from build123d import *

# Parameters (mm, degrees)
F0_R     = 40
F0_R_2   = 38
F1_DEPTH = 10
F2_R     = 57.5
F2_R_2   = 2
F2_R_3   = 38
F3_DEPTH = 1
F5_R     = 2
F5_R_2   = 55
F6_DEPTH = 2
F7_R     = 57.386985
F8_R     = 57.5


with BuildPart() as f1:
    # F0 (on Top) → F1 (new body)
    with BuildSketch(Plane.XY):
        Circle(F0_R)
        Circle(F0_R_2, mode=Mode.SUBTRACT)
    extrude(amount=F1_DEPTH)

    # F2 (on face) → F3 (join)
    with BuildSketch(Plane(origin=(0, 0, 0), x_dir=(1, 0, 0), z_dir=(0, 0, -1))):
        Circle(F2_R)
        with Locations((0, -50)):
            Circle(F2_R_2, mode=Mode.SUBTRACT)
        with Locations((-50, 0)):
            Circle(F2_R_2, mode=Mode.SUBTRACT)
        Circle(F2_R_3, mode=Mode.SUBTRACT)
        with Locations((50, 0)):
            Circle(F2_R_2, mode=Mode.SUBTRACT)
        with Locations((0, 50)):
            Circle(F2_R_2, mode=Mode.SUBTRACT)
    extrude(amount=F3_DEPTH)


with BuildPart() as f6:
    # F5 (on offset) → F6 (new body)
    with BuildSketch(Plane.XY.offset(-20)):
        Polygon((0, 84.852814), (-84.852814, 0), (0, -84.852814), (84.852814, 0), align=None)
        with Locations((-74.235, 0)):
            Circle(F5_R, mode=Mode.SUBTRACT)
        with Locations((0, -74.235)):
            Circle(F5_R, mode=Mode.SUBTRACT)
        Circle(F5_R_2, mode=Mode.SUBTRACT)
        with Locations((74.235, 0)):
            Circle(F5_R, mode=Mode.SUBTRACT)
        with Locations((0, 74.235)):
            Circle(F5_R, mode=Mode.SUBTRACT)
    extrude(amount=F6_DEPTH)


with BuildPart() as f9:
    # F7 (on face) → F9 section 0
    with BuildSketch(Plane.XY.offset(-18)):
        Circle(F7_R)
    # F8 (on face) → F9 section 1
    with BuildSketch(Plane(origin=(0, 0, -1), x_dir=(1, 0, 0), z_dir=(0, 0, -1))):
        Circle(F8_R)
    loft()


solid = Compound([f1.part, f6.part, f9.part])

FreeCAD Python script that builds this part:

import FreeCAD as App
import Part
import Sketcher

V = App.Vector


def add_polygon(sketch, points):
    """Adds a closed chain of lines whose ends are joined by coincident constraints."""
    first, n = sketch.GeometryCount, len(points)
    for a, b in zip(points, points[1:] + points[:1]):
        sketch.addGeometry(Part.LineSegment(App.Vector(*a, 0), App.Vector(*b, 0)), False)
    for i in range(n):
        sketch.addConstraint(Sketcher.Constraint("Coincident", first + i, 2, first + (i + 1) % n, 1))

doc = App.newDocument("Part")
body = doc.addObject("PartDesign::Body", "Body")

# Sketch on XY plane
sketch1 = body.newObject("Sketcher::SketchObject", "Sketch")
sketch1.AttachmentSupport = (doc.getObject("XY_Plane"), [""])
sketch1.MapMode = "FlatFace"
sketch1.addGeometry(Part.Circle(V(0, 0, 0), V(0, 0, 1), 40), False)
sketch1.addGeometry(Part.Circle(V(0, 0, 0), V(0, 0, 1), 38), False)
sketch1.addConstraint(Sketcher.Constraint("Coincident", 0, 3, -1, 1))
sketch1.addConstraint(Sketcher.Constraint("Coincident", 1, 3, -1, 1))
sketch1.addConstraint(Sketcher.Constraint("Diameter", 0, 80.0))
sketch1.addConstraint(Sketcher.Constraint("Diameter", 1, 76.0))
pad1 = body.newObject("PartDesign::Pad", "Pad")
pad1.Profile = sketch1
pad1.Length = 10

# Sketch on XY plane
sketch2 = body.newObject("Sketcher::SketchObject", "Sketch001")
sketch2.AttachmentSupport = (doc.getObject("XY_Plane"), [""])
sketch2.MapMode = "FlatFace"
sketch2.addGeometry(Part.Circle(V(0, 0, 0), V(0, 0, 1), 57.5), False)
sketch2.addGeometry(Part.Circle(V(0, 50, 0), V(0, 0, 1), 2), False)
sketch2.addGeometry(Part.Circle(V(-50, 0, 0), V(0, 0, 1), 2), False)
sketch2.addGeometry(Part.Circle(V(0, 0, 0), V(0, 0, 1), 38), False)
sketch2.addGeometry(Part.Circle(V(50, 0, 0), V(0, 0, 1), 2), False)
sketch2.addGeometry(Part.Circle(V(0, -50, 0), V(0, 0, 1), 2), False)
sketch2.addConstraint(Sketcher.Constraint("Coincident", 0, 3, -1, 1))
sketch2.addConstraint(Sketcher.Constraint("Coincident", 3, 3, -1, 1))
sketch2.addConstraint(Sketcher.Constraint("Equal", 1, 2))
sketch2.addConstraint(Sketcher.Constraint("Equal", 2, 4))
sketch2.addConstraint(Sketcher.Constraint("Equal", 4, 5))
sketch2.addConstraint(Sketcher.Constraint("Symmetric", 2, 3, 4, 3, -1, 1))
sketch2.addConstraint(Sketcher.Constraint("Symmetric", 1, 3, 5, 3, -1, 1))
sketch2.addConstraint(Sketcher.Constraint("PointOnObject", 1, 3, -2))
sketch2.addConstraint(Sketcher.Constraint("PointOnObject", 2, 3, -1))
sketch2.addConstraint(Sketcher.Constraint("Diameter", 0, 115.0))
sketch2.addConstraint(Sketcher.Constraint("Diameter", 1, 4.0))
sketch2.addConstraint(Sketcher.Constraint("Diameter", 3, 76.0))
sketch2.addConstraint(Sketcher.Constraint("DistanceY", -1, 1, 1, 3, 50.0))
sketch2.addConstraint(Sketcher.Constraint("DistanceX", 2, 3, -1, 1, 50.0))
pad2 = body.newObject("PartDesign::Pad", "Pad001")
pad2.Profile = sketch2
pad2.Length = 1
pad2.Reversed = True
body2 = doc.addObject("PartDesign::Body", "Body001")

# Sketch on XY plane
sketch3 = body2.newObject("Sketcher::SketchObject", "Sketch002")
sketch3.AttachmentSupport = (doc.getObject("XY_Plane001"), [""])
sketch3.MapMode = "FlatFace"
sketch3.AttachmentOffset = App.Placement(V(0, 0, -20), App.Rotation())
add_polygon(sketch3, [(0, 84.9), (-84.9, 0), (0, -84.9), (84.9, 0)])  # lines 0-3
sketch3.addGeometry(Part.Circle(V(0, -74.2, 0), V(0, 0, 1), 2), False)  # 4
sketch3.addGeometry(Part.Circle(V(-74.2, 0, 0), V(0, 0, 1), 2), False)  # 5
sketch3.addGeometry(Part.Circle(V(0, 0, 0), V(0, 0, 1), 55), False)  # 6
sketch3.addGeometry(Part.Circle(V(74.2, 0, 0), V(0, 0, 1), 2), False)  # 7
sketch3.addGeometry(Part.Circle(V(0, 74.2, 0), V(0, 0, 1), 2), False)  # 8
sketch3.addConstraint(Sketcher.Constraint("Coincident", 6, 3, -1, 1))
sketch3.addConstraint(Sketcher.Constraint("Equal", 4, 5))
sketch3.addConstraint(Sketcher.Constraint("Equal", 5, 7))
sketch3.addConstraint(Sketcher.Constraint("Equal", 7, 8))
sketch3.addConstraint(Sketcher.Constraint("Symmetric", 5, 3, 7, 3, -1, 1))
sketch3.addConstraint(Sketcher.Constraint("Symmetric", 4, 3, 8, 3, -1, 1))
sketch3.addConstraint(Sketcher.Constraint("Symmetric", 0, 2, 2, 2, -1, 1))
sketch3.addConstraint(Sketcher.Constraint("Symmetric", 1, 2, 3, 2, -1, 1))
sketch3.addConstraint(Sketcher.Constraint("PointOnObject", 4, 3, -2))
sketch3.addConstraint(Sketcher.Constraint("PointOnObject", 5, 3, -1))
sketch3.addConstraint(Sketcher.Constraint("PointOnObject", 0, 2, -1))
sketch3.addConstraint(Sketcher.Constraint("PointOnObject", 1, 2, -2))
sketch3.addConstraint(Sketcher.Constraint("Perpendicular", 0, 1))
sketch3.addConstraint(Sketcher.Constraint("Diameter", 4, 4.0))
sketch3.addConstraint(Sketcher.Constraint("Diameter", 6, 110.0))
sketch3.addConstraint(Sketcher.Constraint("Distance", 0, 120.0))
sketch3.addConstraint(Sketcher.Constraint("DistanceX", 5, 3, 7, 3, 148.47))
sketch3.addConstraint(Sketcher.Constraint("DistanceY", 4, 3, 8, 3, 148.47))
pad3 = body2.newObject("PartDesign::Pad", "Pad002")
pad3.Profile = sketch3
pad3.Length = 2
body3 = doc.addObject("PartDesign::Body", "Body002")

# Sketch on XY plane
sketch4 = body3.newObject("Sketcher::SketchObject", "Sketch003")
sketch4.AttachmentSupport = (doc.getObject("XY_Plane002"), [""])
sketch4.MapMode = "FlatFace"
sketch4.AttachmentOffset = App.Placement(V(0, 0, -18), App.Rotation())
sketch4.addGeometry(Part.Circle(V(0, 0, 0), V(0, 0, 1), 57), False)
sketch4.addConstraint(Sketcher.Constraint("Coincident", 0, 3, -1, 1))
sketch4.addConstraint(Sketcher.Constraint("Diameter", 0, 114.77397))

# Sketch on XY plane
sketch5 = body3.newObject("Sketcher::SketchObject", "Sketch004")
sketch5.AttachmentSupport = (doc.getObject("XY_Plane002"), [""])
sketch5.MapMode = "FlatFace"
sketch5.AttachmentOffset = App.Placement(V(0, 0, -1), App.Rotation())
sketch5.addGeometry(Part.Circle(V(0, 0, 0), V(0, 0, 1), 58), False)
sketch5.addConstraint(Sketcher.Constraint("Coincident", 0, 3, -1, 1))
sketch5.addConstraint(Sketcher.Constraint("Diameter", 0, 115.0))

additiveloft = body3.newObject("PartDesign::AdditiveLoft", "AdditiveLoft")
additiveloft.Profile = sketch4
additiveloft.Sections = [sketch5]

doc.recompute()
